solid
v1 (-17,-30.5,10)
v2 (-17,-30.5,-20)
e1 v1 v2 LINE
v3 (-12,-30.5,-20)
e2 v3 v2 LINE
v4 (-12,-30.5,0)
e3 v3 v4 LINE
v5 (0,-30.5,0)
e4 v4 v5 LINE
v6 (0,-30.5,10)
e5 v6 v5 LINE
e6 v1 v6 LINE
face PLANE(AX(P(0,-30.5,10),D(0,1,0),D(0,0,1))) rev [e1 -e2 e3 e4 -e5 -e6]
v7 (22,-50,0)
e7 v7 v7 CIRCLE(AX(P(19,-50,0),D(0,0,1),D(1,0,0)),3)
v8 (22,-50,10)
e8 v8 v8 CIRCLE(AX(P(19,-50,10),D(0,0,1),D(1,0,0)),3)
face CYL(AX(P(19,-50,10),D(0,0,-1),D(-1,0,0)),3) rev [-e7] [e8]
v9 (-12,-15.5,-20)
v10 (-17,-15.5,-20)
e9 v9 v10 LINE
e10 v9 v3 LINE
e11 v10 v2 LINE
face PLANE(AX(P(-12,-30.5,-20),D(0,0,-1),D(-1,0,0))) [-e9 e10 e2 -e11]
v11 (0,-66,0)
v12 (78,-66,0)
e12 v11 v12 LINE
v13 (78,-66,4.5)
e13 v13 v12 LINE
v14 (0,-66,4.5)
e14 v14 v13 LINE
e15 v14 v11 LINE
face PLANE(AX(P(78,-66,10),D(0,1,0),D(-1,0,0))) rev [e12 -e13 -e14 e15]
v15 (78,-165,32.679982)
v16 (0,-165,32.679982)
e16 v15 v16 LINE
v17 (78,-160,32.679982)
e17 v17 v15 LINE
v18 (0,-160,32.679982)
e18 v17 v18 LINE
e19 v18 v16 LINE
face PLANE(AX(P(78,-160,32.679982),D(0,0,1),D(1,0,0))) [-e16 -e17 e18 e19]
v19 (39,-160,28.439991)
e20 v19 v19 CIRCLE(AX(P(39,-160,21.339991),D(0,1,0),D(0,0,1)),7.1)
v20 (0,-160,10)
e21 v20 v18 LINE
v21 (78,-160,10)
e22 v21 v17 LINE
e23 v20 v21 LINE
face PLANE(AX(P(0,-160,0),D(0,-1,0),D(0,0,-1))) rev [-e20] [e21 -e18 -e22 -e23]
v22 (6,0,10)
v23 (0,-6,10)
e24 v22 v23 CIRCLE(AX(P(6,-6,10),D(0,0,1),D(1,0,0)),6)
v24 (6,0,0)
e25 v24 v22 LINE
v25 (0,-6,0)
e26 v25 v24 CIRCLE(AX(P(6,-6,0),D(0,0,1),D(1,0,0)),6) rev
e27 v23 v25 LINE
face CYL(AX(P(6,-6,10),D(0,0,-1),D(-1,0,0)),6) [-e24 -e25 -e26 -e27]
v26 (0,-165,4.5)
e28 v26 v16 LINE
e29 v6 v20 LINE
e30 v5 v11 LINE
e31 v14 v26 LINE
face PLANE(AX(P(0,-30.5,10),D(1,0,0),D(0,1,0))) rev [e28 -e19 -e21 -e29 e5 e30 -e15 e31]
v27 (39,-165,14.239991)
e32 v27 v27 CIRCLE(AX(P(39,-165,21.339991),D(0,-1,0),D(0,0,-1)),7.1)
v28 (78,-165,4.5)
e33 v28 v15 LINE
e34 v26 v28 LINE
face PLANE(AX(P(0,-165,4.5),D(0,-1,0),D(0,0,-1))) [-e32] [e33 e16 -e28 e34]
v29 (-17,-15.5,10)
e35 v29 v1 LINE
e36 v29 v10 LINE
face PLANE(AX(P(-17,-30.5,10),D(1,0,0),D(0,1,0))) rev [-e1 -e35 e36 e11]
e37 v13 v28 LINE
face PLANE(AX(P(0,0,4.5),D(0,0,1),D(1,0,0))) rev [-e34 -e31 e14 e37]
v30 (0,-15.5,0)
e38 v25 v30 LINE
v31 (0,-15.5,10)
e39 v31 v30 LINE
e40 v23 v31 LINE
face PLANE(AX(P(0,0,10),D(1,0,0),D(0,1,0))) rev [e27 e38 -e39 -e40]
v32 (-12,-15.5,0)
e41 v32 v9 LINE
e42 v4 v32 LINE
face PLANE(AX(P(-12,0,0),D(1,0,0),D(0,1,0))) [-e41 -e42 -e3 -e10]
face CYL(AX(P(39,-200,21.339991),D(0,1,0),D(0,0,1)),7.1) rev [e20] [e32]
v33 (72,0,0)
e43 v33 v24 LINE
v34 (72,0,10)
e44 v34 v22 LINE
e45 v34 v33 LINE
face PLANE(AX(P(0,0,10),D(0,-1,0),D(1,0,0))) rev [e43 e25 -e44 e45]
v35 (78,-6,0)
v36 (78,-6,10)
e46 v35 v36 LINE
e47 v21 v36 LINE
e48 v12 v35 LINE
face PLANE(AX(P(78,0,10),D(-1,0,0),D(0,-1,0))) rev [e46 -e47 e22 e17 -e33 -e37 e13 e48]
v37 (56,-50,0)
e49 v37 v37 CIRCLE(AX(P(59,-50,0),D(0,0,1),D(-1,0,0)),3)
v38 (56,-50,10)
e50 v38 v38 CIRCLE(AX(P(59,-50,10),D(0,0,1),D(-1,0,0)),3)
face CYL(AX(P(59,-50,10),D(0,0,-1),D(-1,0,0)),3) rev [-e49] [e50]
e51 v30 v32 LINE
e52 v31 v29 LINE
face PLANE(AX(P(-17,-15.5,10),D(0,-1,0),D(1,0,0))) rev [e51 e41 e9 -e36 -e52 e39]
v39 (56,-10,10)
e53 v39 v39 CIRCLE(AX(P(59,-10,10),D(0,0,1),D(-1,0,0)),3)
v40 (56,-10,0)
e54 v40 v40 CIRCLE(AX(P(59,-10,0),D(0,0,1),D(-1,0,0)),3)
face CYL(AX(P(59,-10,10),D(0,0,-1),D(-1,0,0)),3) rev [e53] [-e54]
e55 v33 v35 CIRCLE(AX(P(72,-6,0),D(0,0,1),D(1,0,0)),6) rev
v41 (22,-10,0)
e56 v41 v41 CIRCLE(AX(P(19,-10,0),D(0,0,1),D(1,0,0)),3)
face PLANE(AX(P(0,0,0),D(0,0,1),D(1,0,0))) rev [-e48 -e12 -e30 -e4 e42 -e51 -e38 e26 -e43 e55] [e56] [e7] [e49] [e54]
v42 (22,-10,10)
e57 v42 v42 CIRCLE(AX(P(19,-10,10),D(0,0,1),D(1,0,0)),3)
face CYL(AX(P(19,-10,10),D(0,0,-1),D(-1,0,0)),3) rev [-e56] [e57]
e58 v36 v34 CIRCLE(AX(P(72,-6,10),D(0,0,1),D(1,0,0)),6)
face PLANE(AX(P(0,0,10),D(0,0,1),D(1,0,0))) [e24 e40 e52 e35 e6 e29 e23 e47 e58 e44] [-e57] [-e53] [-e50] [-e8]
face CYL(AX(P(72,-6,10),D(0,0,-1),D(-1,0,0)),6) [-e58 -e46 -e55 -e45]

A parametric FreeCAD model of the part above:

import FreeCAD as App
import Part
import Sketcher
from FreeCAD import Vector


def edges_at(feature, points):
    """Names of the edges that pass closest to the given points."""
    edges = feature.Shape.Edges
    near = lambda p: min(range(len(edges)), key=lambda i: edges[i].distToShape(Part.Vertex(*p))[0])
    return sorted({f"Edge{near(p) + 1}" for p in points})


def add_polygon(sketch, points):
    """Adds a closed chain of lines whose ends are joined by coincident constraints."""
    first, n = sketch.GeometryCount, len(points)
    for a, b in zip(points, points[1:] + points[:1]):
        sketch.addGeometry(Part.LineSegment(App.Vector(*a, 0), App.Vector(*b, 0)), False)
    for i in range(n):
        sketch.addConstraint(Sketcher.Constraint("Coincident", first + i, 2, first + (i + 1) % n, 1))

doc = App.newDocument("Part")
params = doc.addObject("Spreadsheet::Sheet", "Params")
for row, (alias, value) in enumerate([
    ("sketch1_diameter", "6 mm"),
    ("sketch1_width", "78 mm"),
    ("sketch1_width2", "17 mm"),
    ("sketch1_height", "15 mm"),
    ("sketch1_height2", "66 mm"),
    ("pad1_length", "10 mm"),
    ("fillet_radius", "6 mm"),
    ("fillet2_radius", "6 mm"),
    ("sketch2_width", "78 mm"),
    ("sketch2_height", "99 mm"),
    ("pad2_length", "5.5 mm"),
    ("sketch3_width", "78 mm"),
    ("pad3_length", "5 mm"),
    ("sketch4_diameter", "14.2 mm"),
    ("pocket1_length", "40 mm"),
    ("sketch5_width", "15 mm"),
    ("sketch5_height", "20 mm"),
    ("pad4_length", "5 mm"),
], start=1):
    params.set(f"A{row}", alias)
    params.set(f"B{row}", "=" + value)
    params.setAlias(f"B{row}", alias)

body = doc.addObject("PartDesign::Body", "Body")

sketch1 = body.newObject("Sketcher::SketchObject", "Sketch")
sketch1.AttachmentSupport = (doc.getObject("XY_Plane"), [""])
sketch1.MapMode = "FlatFace"
add_polygon(sketch1, [(78, 0), (0, 0), (0, -15.5), (-17, -15.5), (-17, -30.5), (0, -30.5), (0, -66), (78, -66)])
sketch1.addGeometry(Part.Circle(Vector(59, -50, 0), Vector(0, 0, 1), 3), False)
sketch1.addGeometry(Part.Circle(Vector(19, -50, 0), Vector(0, 0, 1), 3), False)
sketch1.addGeometry(Part.Circle(Vector(59, -10, 0), Vector(0, 0, 1), 3), False)
sketch1.addGeometry(Part.Circle(Vector(19, -10, 0), Vector(0, 0, 1), 3), False)
sketch1.addConstraint([
    Sketcher.Constraint("Horizontal", 0),
    Sketcher.Constraint("Vertical", 1),
    Sketcher.Constraint("Horizontal", 2),
    Sketcher.Constraint("Vertical", 3),
    Sketcher.Constraint("Horizontal", 4),
    Sketcher.Constraint("Vertical", 5),
    Sketcher.Constraint("Horizontal", 6),
    Sketcher.Constraint("Vertical", 7),
    Sketcher.Constraint("Coincident", 0, 2, -1, 1),
    Sketcher.Constraint("Equal", 8, 9),
    Sketcher.Constraint("Equal", 9, 10),
    Sketcher.Constraint("Equal", 10, 11),
    Sketcher.Constraint("PointOnObject", 4, 2, -2),
    Sketcher.Constraint("Horizontal", 8, 3, 9, 3),
    Sketcher.Constraint("Horizontal", 10, 3, 11, 3),
    Sketcher.Constraint("Vertical", 8, 3, 10, 3),
    Sketcher.Constraint("Vertical", 9, 3, 11, 3),
    Sketcher.Constraint("Diameter", 8, 6.0),
    Sketcher.Constraint("DistanceX", 0, 2, 0, 1, 78.0),
    Sketcher.Constraint("DistanceX", 2, 2, 2, 1, 17.0),
    Sketcher.Constraint("DistanceY", 3, 2, 3, 1, 15.0),
    Sketcher.Constraint("DistanceY", 7, 1, 7, 2, 66.0),
    Sketcher.Constraint("DistanceY", 1, 2, 1, 1, 15.5),
    Sketcher.Constraint("DistanceX", -1, 1, 8, 3, 59.0),
    Sketcher.Constraint("DistanceY", 8, 3, -1, 1, 50.0),
    Sketcher.Constraint("DistanceX", -1, 1, 9, 3, 19.0),
    Sketcher.Constraint("DistanceY", 10, 3, -1, 1, 10.0),
])
sketch1.setExpression("Constraints[25]", "Params.sketch1_diameter")
sketch1.setExpression("Constraints[26]", "Params.sketch1_width")
sketch1.setExpression("Constraints[27]", "Params.sketch1_width2")
sketch1.setExpression("Constraints[28]", "Params.sketch1_height")
sketch1.setExpression("Constraints[29]", "Params.sketch1_height2")
pad1 = body.newObject("PartDesign::Pad", "Pad")
pad1.Profile = sketch1
pad1.setExpression("Length", "Params.pad1_length")
doc.recompute()

fillet = body.newObject("PartDesign::Fillet", "Fillet")
fillet.Base = (pad1, edges_at(pad1, [(0, 0, 5)]))
fillet.setExpression("Radius", "Params.fillet_radius")
doc.recompute()

fillet2 = body.newObject("PartDesign::Fillet", "Fillet001")
fillet2.Base = (fillet, edges_at(fillet, [(78, 0, 5)]))
fillet2.setExpression("Radius", "Params.fillet2_radius")

sketch2 = body.newObject("Sketcher::SketchObject", "Sketch001")
sketch2.AttachmentSupport = (doc.getObject("XY_Plane"), [""])
sketch2.MapMode = "FlatFace"
sketch2.AttachmentOffset = App.Placement(Vector(0, 0, 10), App.Rotation())
add_polygon(sketch2, [(0, -66), (0, -165), (78, -165), (78, -66)])
sketch2.addConstraint([
    Sketcher.Constraint("Vertical", 0),
    Sketcher.Constraint("Horizontal", 1),
    Sketcher.Constraint("Vertical", 2),
    Sketcher.Constraint("Horizontal", 3),
    Sketcher.Constraint("PointOnObject", 0, 2, -2),
    Sketcher.Constraint("DistanceX", 1, 1, 1, 2, 78.0),
    Sketcher.Constraint("DistanceY", 0, 2, 0, 1, 99.0),
    Sketcher.Constraint("DistanceY", 0, 2, -1, 1, 165.0),
])
sketch2.setExpression("Constraints[9]", "Params.sketch2_width")
sketch2.setExpression("Constraints[10]", "Params.sketch2_height")
pad2 = body.newObject("PartDesign::Pad", "Pad001")
pad2.Profile = sketch2
pad2.setExpression("Length", "Params.pad2_length")
pad2.Reversed = True

sketch3 = body.newObject("Sketcher::SketchObject", "Sketch002")
sketch3.AttachmentSupport = (doc.getObject("XZ_Plane"), [""])
sketch3.MapMode = "FlatFace"
sketch3.AttachmentOffset = App.Placement(Vector(0, 0, 165), App.Rotation())
add_polygon(sketch3, [(0, 33), (0, 10), (78, 10), (78, 33)])
sketch3.addConstraint([
    Sketcher.Constraint("Vertical", 0),
    Sketcher.Constraint("Horizontal", 1),
    Sketcher.Constraint("Vertical", 2),
    Sketcher.Constraint("Horizontal", 3),
    Sketcher.Constraint("PointOnObject", 0, 2, -2),
    Sketcher.Constraint("DistanceX", 1, 1, 1, 2, 78.0),
    Sketcher.Constraint("DistanceY", -1, 1, 0, 2, 10.0),
    Sketcher.Constraint("DistanceY", 0, 2, 0, 1, 22.679982),
])
sketch3.setExpression("Constraints[9]", "Params.sketch3_width")
pad3 = body.newObject("PartDesign::Pad", "Pad002")
pad3.Profile = sketch3
pad3.setExpression("Length", "Params.pad3_length")
pad3.Reversed = True

sketch4 = body.newObject("Sketcher::SketchObject", "Sketch003")
sketch4.AttachmentSupport = (doc.getObject("XZ_Plane"), [""])
sketch4.MapMode = "FlatFace"
sketch4.AttachmentOffset = App.Placement(Vector(0, 0, 160), App.Rotation())
sketch4.addGeometry(Part.Circle(Vector(39, 21, 0), Vector(0, 0, 1), 7), False)
sketch4.addConstraint([
    Sketcher.Constraint("Diameter", 0, 14.2),
    Sketcher.Constraint("DistanceX", -1, 1, 0, 3, 39.0),
    Sketcher.Constraint("DistanceY", -1, 1, 0, 3, 21.339991),
])
sketch4.setExpression("Constraints[0]", "Params.sketch4_diameter")
pocket1 = body.newObject("PartDesign::Pocket", "Pocket")
pocket1.Profile = sketch4
pocket1.setExpression("Length", "Params.pocket1_length")
pocket1.Reversed = True

sketch5 = body.newObject("Sketcher::SketchObject", "Sketch004")
sketch5.AttachmentSupport = (doc.getObject("YZ_Plane"), [""])
sketch5.MapMode = "FlatFace"
sketch5.AttachmentOffset = App.Placement(Vector(0, 0, -17), App.Rotation())
add_polygon(sketch5, [(-16, -20), (-30, -20), (-30, 0), (-16, 0)])
sketch5.addConstraint([
    Sketcher.Constraint("Horizontal", 0),
    Sketcher.Constraint("Vertical", 1),
    Sketcher.Constraint("Horizontal", 2),
    Sketcher.Constraint("Vertical", 3),
    Sketcher.Constraint("PointOnObject", 1, 2, -1),
    Sketcher.Constraint("DistanceX", 0, 2, 0, 1, 15.0),
    Sketcher.Constraint("DistanceY", 1, 1, 1, 2, 20.0),
    Sketcher.Constraint("DistanceX", 0, 2, -1, 1, 30.5),
])
sketch5.setExpression("Constraints[9]", "Params.sketch5_width")
sketch5.setExpression("Constraints[10]", "Params.sketch5_height")
pad4 = body.newObject("PartDesign::Pad", "Pad003")
pad4.Profile = sketch5
pad4.setExpression("Length", "Params.pad4_length")

doc.recompute()
